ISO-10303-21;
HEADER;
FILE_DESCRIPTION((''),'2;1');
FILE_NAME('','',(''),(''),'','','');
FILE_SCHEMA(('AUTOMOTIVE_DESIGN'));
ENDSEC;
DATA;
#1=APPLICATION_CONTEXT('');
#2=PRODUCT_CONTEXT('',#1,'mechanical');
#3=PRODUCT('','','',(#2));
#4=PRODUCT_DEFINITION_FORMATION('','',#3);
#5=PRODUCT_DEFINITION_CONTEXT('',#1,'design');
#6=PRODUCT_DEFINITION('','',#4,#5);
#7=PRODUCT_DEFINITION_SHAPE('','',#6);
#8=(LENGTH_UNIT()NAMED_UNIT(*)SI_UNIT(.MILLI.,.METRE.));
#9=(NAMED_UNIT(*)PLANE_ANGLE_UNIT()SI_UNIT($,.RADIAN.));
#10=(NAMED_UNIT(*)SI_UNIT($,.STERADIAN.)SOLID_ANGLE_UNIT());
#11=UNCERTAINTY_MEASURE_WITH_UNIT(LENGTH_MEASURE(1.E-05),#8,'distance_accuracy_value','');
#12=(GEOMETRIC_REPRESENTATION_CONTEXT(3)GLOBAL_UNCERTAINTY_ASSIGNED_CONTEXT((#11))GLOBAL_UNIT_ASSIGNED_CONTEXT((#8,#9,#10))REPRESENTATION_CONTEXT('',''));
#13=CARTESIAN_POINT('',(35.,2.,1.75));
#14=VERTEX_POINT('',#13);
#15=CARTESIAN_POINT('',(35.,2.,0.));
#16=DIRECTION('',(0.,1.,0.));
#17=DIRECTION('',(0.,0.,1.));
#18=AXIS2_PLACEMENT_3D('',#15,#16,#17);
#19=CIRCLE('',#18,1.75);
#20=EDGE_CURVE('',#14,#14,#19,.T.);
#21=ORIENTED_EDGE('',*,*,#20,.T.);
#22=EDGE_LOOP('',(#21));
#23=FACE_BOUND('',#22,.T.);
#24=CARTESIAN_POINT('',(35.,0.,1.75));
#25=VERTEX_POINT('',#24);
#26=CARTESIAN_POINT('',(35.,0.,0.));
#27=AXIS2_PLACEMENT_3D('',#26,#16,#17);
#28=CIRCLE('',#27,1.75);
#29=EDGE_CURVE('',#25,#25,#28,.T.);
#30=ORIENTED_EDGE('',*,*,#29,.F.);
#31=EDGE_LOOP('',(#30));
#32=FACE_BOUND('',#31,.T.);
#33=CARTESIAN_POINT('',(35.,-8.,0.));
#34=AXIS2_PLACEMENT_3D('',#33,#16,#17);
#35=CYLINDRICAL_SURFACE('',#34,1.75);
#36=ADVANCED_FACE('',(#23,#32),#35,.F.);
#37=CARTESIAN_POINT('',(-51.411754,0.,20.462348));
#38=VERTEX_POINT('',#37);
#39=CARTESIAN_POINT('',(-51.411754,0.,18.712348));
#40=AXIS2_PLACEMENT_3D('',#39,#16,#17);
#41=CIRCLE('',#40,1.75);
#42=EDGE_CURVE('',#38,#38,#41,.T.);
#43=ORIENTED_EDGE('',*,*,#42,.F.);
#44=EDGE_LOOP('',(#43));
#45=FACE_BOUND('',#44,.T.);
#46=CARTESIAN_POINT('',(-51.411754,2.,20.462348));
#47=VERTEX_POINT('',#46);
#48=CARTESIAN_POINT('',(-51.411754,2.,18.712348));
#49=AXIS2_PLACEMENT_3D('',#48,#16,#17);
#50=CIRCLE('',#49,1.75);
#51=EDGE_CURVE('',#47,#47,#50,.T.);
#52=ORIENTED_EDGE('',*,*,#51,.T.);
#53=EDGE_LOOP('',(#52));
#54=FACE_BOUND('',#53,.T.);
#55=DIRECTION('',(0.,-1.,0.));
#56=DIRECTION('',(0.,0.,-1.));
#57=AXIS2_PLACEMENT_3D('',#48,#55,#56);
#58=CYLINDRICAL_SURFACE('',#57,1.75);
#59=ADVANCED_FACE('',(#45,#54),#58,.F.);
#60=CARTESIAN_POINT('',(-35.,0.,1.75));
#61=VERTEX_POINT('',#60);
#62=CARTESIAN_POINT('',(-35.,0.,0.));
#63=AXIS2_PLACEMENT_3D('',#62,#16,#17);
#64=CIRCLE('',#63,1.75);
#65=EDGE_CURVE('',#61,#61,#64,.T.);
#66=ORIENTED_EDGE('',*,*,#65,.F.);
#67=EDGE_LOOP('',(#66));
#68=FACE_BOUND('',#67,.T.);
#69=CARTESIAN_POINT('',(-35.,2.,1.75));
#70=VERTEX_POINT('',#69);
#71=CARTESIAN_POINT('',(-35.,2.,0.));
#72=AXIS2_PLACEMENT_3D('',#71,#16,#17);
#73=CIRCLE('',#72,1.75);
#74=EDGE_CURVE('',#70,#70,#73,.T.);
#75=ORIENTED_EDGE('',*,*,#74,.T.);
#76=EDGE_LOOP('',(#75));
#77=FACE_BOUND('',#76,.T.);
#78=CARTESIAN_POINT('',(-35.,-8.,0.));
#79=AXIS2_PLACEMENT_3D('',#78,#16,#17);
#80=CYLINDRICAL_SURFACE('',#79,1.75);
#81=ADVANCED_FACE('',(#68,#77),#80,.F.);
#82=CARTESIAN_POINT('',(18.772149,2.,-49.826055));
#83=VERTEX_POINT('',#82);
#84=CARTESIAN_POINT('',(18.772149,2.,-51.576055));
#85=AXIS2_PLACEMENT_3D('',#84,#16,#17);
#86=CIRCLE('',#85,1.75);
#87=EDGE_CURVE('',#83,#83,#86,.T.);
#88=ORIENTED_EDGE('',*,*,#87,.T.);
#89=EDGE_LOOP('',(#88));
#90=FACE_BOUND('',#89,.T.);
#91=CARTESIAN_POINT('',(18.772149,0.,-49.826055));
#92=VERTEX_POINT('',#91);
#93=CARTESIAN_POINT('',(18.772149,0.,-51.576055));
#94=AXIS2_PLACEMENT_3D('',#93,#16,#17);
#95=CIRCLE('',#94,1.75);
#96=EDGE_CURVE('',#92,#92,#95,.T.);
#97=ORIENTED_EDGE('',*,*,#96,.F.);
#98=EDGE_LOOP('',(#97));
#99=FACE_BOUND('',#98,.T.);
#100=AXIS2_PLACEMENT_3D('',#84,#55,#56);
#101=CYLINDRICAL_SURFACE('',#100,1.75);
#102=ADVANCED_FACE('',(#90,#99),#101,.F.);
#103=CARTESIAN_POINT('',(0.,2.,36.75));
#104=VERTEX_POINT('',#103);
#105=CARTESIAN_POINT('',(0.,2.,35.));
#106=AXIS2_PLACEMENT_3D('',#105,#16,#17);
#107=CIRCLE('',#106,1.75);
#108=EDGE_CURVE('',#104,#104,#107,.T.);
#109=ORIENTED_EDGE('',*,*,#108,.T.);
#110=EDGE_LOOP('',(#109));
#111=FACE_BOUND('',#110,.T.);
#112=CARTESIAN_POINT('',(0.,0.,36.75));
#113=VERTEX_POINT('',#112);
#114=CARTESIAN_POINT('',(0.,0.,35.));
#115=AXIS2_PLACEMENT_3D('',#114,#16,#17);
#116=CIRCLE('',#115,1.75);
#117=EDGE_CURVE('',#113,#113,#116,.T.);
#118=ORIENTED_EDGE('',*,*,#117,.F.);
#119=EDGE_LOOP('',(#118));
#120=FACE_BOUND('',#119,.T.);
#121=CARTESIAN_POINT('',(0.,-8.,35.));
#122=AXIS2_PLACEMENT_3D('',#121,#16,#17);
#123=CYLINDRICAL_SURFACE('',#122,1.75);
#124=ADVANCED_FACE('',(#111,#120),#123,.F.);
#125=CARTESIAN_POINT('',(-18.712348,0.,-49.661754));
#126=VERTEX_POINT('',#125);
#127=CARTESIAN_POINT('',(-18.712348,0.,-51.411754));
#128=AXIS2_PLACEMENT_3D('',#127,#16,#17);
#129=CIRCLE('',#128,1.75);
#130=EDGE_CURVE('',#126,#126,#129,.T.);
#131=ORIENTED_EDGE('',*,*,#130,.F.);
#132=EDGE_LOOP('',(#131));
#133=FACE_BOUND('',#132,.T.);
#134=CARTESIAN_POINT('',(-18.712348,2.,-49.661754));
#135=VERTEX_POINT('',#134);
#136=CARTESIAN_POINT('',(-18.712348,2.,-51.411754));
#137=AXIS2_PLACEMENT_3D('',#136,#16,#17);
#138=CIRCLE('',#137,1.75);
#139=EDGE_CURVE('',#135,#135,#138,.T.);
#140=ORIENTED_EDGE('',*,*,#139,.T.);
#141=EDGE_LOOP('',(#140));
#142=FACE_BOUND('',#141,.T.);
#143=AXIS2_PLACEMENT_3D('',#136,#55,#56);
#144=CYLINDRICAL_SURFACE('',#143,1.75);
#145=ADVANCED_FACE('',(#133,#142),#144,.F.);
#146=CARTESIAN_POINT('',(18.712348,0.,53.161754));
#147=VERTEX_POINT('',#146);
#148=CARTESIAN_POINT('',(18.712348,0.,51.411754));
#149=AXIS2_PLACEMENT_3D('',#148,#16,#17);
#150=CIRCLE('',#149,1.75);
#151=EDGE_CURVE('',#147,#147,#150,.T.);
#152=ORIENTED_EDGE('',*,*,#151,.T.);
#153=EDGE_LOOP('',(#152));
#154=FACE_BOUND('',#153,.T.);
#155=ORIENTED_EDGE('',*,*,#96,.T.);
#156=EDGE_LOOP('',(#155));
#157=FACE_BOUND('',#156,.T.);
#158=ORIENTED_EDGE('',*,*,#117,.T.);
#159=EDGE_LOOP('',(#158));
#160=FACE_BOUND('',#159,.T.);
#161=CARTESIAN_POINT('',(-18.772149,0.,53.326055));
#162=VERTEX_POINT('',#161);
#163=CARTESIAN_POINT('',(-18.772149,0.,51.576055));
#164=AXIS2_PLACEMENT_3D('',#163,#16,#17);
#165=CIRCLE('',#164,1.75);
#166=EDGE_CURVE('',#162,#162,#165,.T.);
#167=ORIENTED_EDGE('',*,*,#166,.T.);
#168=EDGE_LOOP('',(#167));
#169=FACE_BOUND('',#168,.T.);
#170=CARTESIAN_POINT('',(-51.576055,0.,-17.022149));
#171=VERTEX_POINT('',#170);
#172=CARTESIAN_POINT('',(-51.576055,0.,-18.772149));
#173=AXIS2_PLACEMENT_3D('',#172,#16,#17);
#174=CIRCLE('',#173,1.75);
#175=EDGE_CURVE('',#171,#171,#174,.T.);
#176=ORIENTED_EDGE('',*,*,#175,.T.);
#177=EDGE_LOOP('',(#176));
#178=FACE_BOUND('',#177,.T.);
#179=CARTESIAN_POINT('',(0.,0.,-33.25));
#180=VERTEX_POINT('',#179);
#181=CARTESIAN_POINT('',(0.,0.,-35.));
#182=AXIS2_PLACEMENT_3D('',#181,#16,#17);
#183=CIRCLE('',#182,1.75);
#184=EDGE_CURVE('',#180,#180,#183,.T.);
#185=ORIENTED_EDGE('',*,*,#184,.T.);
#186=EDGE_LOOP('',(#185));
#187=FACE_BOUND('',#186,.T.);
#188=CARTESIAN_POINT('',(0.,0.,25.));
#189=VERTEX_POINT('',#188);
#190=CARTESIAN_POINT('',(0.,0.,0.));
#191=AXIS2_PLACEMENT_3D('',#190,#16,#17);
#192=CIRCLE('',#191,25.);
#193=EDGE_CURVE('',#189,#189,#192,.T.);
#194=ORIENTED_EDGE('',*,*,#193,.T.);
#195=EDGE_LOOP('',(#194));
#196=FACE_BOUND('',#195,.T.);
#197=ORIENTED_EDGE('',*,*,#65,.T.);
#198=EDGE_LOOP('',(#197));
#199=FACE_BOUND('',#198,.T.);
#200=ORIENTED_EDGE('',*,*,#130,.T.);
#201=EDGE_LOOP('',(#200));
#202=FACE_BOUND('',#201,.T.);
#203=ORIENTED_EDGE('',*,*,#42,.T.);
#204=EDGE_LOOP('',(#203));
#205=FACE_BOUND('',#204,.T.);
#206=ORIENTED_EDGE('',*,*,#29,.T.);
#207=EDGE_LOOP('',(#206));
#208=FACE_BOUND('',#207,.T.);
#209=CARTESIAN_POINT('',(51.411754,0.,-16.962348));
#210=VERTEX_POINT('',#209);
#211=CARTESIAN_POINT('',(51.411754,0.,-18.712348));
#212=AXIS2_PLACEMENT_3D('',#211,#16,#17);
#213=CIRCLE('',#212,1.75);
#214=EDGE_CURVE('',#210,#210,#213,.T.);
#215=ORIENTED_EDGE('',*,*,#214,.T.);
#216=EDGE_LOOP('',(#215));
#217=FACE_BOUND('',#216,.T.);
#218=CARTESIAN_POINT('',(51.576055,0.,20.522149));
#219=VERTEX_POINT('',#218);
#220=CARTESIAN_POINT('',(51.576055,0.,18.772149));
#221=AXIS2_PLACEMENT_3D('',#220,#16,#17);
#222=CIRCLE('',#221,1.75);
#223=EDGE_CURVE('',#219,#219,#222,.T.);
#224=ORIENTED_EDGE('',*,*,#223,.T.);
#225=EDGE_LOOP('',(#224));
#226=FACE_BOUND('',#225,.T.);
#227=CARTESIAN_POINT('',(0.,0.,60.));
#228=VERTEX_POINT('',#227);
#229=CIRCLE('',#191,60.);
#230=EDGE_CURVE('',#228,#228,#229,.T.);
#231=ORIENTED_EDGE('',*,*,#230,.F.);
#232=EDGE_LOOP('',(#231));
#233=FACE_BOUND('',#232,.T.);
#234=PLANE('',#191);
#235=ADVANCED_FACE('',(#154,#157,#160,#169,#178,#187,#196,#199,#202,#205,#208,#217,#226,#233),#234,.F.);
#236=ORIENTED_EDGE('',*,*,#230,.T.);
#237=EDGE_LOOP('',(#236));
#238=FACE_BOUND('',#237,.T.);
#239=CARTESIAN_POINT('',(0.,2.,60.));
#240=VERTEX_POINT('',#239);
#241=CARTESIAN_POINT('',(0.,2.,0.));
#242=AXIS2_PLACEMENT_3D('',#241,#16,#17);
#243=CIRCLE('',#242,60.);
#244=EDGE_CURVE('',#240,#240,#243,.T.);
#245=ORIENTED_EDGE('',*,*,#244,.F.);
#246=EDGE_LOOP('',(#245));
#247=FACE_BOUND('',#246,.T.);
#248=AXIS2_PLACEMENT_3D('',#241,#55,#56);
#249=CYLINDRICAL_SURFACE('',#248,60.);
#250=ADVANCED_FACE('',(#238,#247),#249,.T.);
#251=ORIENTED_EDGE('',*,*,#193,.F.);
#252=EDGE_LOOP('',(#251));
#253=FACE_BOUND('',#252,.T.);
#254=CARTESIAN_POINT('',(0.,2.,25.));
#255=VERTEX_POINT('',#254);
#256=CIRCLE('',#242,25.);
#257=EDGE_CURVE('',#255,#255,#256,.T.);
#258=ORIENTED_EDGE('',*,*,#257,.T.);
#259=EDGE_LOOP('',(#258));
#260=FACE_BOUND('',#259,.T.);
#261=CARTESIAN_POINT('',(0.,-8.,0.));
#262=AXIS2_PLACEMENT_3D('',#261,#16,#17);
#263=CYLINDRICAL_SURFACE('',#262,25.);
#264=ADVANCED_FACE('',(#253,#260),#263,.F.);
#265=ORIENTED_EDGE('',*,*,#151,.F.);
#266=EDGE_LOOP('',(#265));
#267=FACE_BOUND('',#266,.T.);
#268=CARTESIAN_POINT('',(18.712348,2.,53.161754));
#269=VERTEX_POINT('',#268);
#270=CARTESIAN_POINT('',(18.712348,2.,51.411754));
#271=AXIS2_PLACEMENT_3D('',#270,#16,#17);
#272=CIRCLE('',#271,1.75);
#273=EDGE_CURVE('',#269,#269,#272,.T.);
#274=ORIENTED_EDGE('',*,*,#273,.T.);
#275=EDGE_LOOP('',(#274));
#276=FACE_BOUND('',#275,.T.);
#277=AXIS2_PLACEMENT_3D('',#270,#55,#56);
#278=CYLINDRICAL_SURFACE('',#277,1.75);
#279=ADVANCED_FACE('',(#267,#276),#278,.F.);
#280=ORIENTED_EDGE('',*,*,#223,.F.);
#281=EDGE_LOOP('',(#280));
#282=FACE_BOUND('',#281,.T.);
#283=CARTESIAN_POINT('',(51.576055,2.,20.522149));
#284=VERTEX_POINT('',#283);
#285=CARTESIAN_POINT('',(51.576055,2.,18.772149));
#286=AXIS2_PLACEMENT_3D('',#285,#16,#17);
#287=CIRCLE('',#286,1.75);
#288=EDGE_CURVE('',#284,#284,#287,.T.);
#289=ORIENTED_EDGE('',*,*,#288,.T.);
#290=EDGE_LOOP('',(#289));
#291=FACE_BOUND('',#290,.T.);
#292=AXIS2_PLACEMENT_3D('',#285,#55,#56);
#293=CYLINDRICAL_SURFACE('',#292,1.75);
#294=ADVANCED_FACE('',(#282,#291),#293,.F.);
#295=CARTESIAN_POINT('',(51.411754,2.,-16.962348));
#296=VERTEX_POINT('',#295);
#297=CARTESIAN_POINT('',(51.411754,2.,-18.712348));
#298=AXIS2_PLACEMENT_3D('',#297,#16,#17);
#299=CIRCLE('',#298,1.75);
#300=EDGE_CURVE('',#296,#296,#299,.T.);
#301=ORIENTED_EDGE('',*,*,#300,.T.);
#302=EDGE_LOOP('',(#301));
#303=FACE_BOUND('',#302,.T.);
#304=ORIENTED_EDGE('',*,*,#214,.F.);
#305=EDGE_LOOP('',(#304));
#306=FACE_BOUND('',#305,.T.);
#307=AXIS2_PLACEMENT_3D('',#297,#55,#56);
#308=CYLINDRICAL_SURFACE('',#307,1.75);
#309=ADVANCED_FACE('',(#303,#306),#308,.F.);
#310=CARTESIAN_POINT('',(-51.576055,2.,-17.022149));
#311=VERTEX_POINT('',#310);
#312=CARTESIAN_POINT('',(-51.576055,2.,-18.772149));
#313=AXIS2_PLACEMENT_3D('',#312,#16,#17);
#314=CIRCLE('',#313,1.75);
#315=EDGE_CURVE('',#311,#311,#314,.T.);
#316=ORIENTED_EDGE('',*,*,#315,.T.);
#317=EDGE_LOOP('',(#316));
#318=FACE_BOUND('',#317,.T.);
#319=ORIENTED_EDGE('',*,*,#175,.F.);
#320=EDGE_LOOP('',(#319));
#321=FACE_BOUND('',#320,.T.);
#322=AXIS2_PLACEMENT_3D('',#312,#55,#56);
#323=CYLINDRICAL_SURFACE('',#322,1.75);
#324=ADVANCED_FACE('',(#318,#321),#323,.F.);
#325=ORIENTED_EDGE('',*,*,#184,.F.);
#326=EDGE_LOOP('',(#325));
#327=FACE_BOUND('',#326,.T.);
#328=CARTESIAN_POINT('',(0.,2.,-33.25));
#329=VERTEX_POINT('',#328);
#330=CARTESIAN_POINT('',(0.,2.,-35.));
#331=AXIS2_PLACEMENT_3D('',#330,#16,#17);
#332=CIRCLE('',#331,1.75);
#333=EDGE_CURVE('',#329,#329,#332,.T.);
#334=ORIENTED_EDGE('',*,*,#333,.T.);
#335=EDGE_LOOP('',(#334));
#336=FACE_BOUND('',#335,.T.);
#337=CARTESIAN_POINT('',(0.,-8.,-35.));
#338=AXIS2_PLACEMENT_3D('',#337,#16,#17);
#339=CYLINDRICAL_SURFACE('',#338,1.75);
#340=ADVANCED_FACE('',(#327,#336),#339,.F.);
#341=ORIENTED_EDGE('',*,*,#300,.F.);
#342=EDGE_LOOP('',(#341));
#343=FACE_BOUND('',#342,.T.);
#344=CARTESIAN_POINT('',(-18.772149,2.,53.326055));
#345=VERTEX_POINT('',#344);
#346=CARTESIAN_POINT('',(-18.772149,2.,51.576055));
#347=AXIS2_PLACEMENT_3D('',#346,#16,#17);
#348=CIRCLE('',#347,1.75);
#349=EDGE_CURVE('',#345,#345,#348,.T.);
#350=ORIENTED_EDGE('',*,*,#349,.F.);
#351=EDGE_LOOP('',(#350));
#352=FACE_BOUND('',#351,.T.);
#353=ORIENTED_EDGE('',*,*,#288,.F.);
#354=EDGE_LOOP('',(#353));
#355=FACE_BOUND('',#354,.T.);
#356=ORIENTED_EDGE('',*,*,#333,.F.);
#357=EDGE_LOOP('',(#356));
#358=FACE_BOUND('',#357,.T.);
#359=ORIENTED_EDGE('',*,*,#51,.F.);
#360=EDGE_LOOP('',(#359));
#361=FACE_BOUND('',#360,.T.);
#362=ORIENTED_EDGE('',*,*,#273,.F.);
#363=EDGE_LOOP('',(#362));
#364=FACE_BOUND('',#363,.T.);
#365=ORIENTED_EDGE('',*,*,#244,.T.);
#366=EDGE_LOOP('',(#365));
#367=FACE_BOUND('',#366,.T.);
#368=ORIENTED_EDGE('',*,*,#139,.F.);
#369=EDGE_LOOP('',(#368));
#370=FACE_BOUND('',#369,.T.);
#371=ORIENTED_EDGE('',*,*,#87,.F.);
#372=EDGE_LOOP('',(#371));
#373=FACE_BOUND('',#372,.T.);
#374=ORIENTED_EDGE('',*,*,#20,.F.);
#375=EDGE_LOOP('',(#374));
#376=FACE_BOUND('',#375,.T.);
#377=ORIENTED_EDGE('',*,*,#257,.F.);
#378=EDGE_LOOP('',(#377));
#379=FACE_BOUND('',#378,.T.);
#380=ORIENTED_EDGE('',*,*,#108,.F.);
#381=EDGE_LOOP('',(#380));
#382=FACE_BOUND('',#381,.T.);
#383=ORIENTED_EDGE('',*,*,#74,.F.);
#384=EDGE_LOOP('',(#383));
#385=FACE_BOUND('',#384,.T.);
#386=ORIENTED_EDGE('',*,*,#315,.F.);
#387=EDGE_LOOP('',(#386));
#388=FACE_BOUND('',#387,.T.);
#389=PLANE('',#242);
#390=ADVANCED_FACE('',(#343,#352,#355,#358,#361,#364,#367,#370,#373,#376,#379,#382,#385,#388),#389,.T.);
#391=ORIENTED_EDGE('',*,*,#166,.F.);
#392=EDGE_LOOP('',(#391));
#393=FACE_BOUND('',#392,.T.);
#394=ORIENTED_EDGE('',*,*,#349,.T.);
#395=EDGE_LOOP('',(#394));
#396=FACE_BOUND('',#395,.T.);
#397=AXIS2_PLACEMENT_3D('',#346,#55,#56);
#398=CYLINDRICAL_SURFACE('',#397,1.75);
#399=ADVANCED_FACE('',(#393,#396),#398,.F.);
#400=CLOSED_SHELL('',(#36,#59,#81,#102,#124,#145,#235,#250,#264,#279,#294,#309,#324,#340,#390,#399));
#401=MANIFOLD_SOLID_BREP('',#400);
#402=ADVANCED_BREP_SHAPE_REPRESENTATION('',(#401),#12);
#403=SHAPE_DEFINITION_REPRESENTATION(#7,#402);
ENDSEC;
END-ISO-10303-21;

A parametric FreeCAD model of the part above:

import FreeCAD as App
import Part
import Sketcher

doc = App.newDocument("Part")
body = doc.addObject("PartDesign::Body", "Body")

# Sketch on XZ plane
sketch1 = body.newObject("Sketcher::SketchObject", "Sketch")
sketch1.AttachmentSupport = (doc.getObject("XZ_Plane"), [""])
sketch1.MapMode = "FlatFace"
sketch1.addGeometry([
    Part.Circle(App.Vector(0, 0, 0), App.Vector(0, 0, 1), 60),  # 0
    Part.Circle(App.Vector(-51.576055, -18.772149, 0), App.Vector(0, 0, 1), 1.75),  # 1
    Part.Circle(App.Vector(-18.712348, -51.411754, 0), App.Vector(0, 0, 1), 1.75),  # 2
    Part.Circle(App.Vector(-51.411754, 18.712348, 0), App.Vector(0, 0, 1), 1.75),  # 3
    Part.Circle(App.Vector(-18.772149, 51.576055, 0), App.Vector(0, 0, 1), 1.75),  # 4
    Part.Circle(App.Vector(18.772149, -51.576055, 0), App.Vector(0, 0, 1), 1.75),  # 5
    Part.Circle(App.Vector(51.411754, -18.712348, 0), App.Vector(0, 0, 1), 1.75),  # 6
    Part.Circle(App.Vector(18.712348, 51.411754, 0), App.Vector(0, 0, 1), 1.75),  # 7
    Part.Circle(App.Vector(51.576055, 18.772149, 0), App.Vector(0, 0, 1), 1.75),  # 8
], False)
sketch1.addConstraint([
    Sketcher.Constraint("Coincident", 0, 3, -1, 1),
    Sketcher.Constraint("Equal", 1, 2),
    Sketcher.Constraint("Equal", 2, 3),
    Sketcher.Constraint("Equal", 3, 4),
    Sketcher.Constraint("Equal", 4, 5),
    Sketcher.Constraint("Equal", 5, 6),
    Sketcher.Constraint("Equal", 6, 7),
    Sketcher.Constraint("Equal", 7, 8),
    Sketcher.Constraint("Symmetric", 4, 3, 5, 3, -1, 1),
    Sketcher.Constraint("Symmetric", 3, 3, 6, 3, -1, 1),
    Sketcher.Constraint("Symmetric", 2, 3, 7, 3, -1, 1),
    Sketcher.Constraint("Symmetric", 1, 3, 8, 3, -1, 1),
    Sketcher.Constraint("Diameter", 0, 120.0),
    Sketcher.Constraint("Diameter", 1, 3.5),
    Sketcher.Constraint("DistanceX", 1, 3, 3, 3, 0.164301),
    Sketcher.Constraint("DistanceY", 2, 3, 3, 3, 70.124102),
    Sketcher.Constraint("DistanceX", 4, 3, 2, 3, 0.059801),
    Sketcher.Constraint("DistanceY", 5, 3, 2, 3, 0.164301),
    Sketcher.Constraint("DistanceX", 2, 3, 6, 3, 70.124102),
    Sketcher.Constraint("DistanceY", 1, 3, 6, 3, 0.059801),
    Sketcher.Constraint("DistanceY", 1, 3, -1, 1, 18.772149),
    Sketcher.Constraint("DistanceX", 2, 3, -1, 1, 18.712348),
])
pad1 = body.newObject("PartDesign::Pad", "Pad")
pad1.Profile = sketch1
pad1.Length = 2
pad1.Reversed = True

# Sketch on XZ plane
sketch2 = body.newObject("Sketcher::SketchObject", "Sketch001")
sketch2.AttachmentSupport = (doc.getObject("XZ_Plane"), [""])
sketch2.MapMode = "FlatFace"
sketch2.AttachmentOffset = App.Placement(App.Vector(0, 0, -2), App.Rotation())
sketch2.addGeometry([
    Part.Circle(App.Vector(0, -35, 0), App.Vector(0, 0, 1), 1.75),
    Part.Circle(App.Vector(35, 0, 0), App.Vector(0, 0, 1), 1.75),
    Part.Circle(App.Vector(0, 35, 0), App.Vector(0, 0, 1), 1.75),
    Part.Circle(App.Vector(-35, 0, 0), App.Vector(0, 0, 1), 1.75),
], False)
sketch2.addConstraint([
    Sketcher.Constraint("Equal", 0, 1),
    Sketcher.Constraint("Equal", 1, 2),
    Sketcher.Constraint("Equal", 2, 3),
    Sketcher.Constraint("Symmetric", 0, 3, 2, 3, -1, 1),
    Sketcher.Constraint("Symmetric", 1, 3, 3, 3, -1, 1),
    Sketcher.Constraint("PointOnObject", 0, 3, -2),
    Sketcher.Constraint("PointOnObject", 1, 3, -1),
    Sketcher.Constraint("Diameter", 0, 3.5),
    Sketcher.Constraint("DistanceY", 0, 3, -1, 1, 35.0),
    Sketcher.Constraint("DistanceX", -1, 1, 1, 3, 35.0),
])
pocket1 = body.newObject("PartDesign::Pocket", "Pocket")
pocket1.Profile = sketch2
pocket1.Length = 10
pocket1.Reversed = True

# Sketch on XZ plane
sketch3 = body.newObject("Sketcher::SketchObject", "Sketch002")
sketch3.AttachmentSupport = (doc.getObject("XZ_Plane"), [""])
sketch3.MapMode = "FlatFace"
sketch3.AttachmentOffset = App.Placement(App.Vector(0, 0, -2), App.Rotation())
sketch3.addGeometry(Part.Circle(App.Vector(0, 0, 0), App.Vector(0, 0, 1), 25), False)
sketch3.addConstraint([
    Sketcher.Constraint("Coincident", 0, 3, -1, 1),
    Sketcher.Constraint("Diameter", 0, 50.0),
])
pocket2 = body.newObject("PartDesign::Pocket", "Pocket001")
pocket2.Profile = sketch3
pocket2.Length = 10
pocket2.Reversed = True

doc.recompute()
